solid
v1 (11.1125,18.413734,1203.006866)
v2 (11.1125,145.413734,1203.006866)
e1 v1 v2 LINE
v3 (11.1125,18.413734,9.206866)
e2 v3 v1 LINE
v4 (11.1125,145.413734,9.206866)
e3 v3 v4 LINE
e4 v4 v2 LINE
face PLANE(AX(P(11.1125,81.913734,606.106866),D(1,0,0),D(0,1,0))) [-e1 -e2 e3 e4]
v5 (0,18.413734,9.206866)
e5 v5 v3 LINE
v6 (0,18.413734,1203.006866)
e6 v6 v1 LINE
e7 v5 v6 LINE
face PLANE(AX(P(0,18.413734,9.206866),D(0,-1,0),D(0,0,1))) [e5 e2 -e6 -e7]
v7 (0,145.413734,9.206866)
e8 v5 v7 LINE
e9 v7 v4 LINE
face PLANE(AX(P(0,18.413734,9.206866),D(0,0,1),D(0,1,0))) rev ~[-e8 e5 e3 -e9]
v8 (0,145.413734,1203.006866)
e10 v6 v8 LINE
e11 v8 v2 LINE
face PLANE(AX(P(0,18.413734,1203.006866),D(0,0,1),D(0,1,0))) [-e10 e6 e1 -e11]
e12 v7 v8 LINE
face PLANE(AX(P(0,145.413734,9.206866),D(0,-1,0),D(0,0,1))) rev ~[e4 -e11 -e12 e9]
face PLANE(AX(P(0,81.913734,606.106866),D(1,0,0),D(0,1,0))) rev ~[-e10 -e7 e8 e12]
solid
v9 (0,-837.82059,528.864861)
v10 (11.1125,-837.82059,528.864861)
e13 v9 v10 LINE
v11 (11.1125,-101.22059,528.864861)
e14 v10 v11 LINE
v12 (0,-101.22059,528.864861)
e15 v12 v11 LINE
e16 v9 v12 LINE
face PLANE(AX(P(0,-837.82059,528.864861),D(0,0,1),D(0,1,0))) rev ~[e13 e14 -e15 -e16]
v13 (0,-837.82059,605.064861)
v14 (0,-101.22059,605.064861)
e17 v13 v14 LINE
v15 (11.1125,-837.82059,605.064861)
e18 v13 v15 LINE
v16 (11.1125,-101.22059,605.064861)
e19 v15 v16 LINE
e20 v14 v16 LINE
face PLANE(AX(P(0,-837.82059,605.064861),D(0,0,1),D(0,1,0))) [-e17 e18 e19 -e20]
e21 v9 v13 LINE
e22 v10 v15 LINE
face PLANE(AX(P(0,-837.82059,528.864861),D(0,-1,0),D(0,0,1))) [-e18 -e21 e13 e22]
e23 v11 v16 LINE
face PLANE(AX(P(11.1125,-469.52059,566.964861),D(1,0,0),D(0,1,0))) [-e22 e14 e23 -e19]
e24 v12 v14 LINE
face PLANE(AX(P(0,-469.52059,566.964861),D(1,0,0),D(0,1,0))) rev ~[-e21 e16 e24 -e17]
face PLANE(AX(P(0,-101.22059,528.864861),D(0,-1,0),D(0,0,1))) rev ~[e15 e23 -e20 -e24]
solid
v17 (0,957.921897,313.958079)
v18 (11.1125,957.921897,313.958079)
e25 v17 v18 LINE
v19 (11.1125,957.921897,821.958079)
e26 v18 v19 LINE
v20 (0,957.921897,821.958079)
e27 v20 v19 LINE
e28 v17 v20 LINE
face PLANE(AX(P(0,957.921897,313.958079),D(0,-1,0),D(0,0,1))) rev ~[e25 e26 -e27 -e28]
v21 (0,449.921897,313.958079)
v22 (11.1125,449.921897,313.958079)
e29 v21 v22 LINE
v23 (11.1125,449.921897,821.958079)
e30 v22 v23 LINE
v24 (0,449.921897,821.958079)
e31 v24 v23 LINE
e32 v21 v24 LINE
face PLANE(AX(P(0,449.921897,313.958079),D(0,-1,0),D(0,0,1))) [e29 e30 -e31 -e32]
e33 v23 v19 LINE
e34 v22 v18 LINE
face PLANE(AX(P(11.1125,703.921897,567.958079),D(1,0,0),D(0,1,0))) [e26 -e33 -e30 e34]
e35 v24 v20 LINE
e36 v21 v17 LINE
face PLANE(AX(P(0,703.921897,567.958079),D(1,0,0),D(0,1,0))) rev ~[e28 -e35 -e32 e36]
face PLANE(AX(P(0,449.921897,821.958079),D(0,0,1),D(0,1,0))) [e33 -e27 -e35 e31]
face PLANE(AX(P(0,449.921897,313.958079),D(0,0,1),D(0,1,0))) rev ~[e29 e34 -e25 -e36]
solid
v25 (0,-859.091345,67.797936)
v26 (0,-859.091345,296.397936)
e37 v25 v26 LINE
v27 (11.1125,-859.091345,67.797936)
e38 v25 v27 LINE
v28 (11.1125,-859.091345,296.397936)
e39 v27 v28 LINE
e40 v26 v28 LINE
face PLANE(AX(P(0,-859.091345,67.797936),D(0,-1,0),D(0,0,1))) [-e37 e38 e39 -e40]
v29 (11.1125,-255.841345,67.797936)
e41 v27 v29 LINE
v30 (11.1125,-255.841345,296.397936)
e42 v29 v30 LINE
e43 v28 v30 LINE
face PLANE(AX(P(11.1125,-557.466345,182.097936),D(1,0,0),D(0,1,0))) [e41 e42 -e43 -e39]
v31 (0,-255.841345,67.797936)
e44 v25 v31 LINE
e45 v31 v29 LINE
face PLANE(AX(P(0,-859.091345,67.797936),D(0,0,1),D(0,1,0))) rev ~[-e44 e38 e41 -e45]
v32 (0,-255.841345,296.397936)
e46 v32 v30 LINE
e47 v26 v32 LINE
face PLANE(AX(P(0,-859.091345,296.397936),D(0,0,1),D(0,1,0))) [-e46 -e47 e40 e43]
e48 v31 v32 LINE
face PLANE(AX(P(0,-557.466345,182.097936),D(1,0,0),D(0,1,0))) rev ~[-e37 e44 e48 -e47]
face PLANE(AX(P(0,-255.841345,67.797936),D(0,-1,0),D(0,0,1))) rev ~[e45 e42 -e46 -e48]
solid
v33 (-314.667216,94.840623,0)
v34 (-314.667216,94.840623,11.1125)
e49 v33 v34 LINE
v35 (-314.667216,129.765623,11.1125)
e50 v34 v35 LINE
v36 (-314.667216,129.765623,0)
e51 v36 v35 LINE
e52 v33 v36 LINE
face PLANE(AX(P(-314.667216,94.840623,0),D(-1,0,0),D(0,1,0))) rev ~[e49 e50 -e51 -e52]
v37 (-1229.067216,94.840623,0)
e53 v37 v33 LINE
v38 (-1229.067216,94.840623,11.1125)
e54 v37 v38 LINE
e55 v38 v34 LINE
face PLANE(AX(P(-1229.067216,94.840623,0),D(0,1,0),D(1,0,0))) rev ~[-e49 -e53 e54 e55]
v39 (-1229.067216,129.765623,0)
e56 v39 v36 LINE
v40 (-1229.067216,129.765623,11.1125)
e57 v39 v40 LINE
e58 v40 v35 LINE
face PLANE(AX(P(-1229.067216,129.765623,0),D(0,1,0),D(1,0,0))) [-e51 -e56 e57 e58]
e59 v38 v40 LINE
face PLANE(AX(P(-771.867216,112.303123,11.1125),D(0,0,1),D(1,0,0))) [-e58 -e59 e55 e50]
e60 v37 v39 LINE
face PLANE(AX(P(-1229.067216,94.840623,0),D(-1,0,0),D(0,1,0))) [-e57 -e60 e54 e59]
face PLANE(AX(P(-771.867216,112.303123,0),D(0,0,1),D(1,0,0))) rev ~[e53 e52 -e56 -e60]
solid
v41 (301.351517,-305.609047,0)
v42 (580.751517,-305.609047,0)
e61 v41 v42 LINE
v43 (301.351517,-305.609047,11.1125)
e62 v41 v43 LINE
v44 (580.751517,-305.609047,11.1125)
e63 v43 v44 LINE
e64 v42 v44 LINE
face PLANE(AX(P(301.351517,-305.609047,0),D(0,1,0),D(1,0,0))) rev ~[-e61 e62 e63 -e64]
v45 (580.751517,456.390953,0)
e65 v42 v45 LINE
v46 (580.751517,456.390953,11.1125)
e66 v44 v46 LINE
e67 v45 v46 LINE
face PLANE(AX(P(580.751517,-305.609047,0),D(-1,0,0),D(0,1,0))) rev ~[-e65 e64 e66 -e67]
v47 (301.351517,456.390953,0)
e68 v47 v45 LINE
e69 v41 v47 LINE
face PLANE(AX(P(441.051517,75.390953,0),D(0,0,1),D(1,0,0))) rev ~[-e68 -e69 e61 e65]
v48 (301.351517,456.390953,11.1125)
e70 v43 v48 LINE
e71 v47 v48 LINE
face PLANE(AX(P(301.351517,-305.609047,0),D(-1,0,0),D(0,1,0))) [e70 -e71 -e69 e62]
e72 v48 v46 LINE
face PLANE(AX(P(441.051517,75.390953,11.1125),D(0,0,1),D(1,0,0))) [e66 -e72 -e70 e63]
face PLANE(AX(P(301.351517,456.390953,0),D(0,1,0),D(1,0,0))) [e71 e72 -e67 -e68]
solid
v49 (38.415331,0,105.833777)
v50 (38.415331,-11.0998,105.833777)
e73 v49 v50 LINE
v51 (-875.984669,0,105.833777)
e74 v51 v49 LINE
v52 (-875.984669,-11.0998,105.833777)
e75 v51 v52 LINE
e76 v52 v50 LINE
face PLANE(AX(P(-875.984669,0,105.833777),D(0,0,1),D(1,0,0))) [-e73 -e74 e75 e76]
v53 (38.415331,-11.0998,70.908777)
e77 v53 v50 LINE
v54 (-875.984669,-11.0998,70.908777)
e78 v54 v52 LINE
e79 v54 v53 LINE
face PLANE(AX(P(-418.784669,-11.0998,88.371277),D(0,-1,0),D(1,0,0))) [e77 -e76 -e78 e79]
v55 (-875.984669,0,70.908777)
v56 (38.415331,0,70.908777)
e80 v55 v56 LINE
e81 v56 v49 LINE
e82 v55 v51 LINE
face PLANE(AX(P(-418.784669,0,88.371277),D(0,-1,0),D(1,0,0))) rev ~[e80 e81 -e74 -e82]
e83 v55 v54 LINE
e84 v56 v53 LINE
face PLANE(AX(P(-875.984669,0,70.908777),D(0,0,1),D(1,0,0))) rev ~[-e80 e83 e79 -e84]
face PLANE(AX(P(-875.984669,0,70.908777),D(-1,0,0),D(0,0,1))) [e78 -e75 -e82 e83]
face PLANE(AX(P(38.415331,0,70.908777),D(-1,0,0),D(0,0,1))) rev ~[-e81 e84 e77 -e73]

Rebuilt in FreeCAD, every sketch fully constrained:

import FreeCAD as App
import Part
import Sketcher

V = App.Vector
Q = App.Units.Quantity


def add_polygon(sketch, points):
    """Adds a closed chain of lines whose ends are joined by coincident constraints."""
    first, n = sketch.GeometryCount, len(points)
    for a, b in zip(points, points[1:] + points[:1]):
        sketch.addGeometry(Part.LineSegment(App.Vector(*a, 0), App.Vector(*b, 0)), False)
    for i in range(n):
        sketch.addConstraint(Sketcher.Constraint("Coincident", first + i, 2, first + (i + 1) % n, 1))

doc = App.newDocument("Part")
body = doc.addObject("PartDesign::Body", "Body")

# Sketch on YZ plane
sketch1 = body.newObject("Sketcher::SketchObject", "Sketch")
sketch1.AttachmentSupport = (doc.getObject("YZ_Plane"), [""])
sketch1.MapMode = "FlatFace"
add_polygon(sketch1, [(18, 1203), (18, 9), (145, 9), (145, 1203)])  # lines 0-3
sketch1.addConstraint(Sketcher.Constraint("Vertical", 0))
sketch1.addConstraint(Sketcher.Constraint("Horizontal", 1))
sketch1.addConstraint(Sketcher.Constraint("Vertical", 2))
sketch1.addConstraint(Sketcher.Constraint("Horizontal", 3))
sketch1.addConstraint(Sketcher.Constraint("DistanceX", 1, 1, 1, 2, Q("5 in")))
sketch1.addConstraint(Sketcher.Constraint("DistanceY", 0, 2, 0, 1, Q("47 in")))
sketch1.addConstraint(Sketcher.Constraint("DistanceX", -1, 1, 0, 2, 18.413734))
sketch1.addConstraint(Sketcher.Constraint("DistanceY", -1, 1, 0, 2, 9.206866))
pad1 = body.newObject("PartDesign::Pad", "Pad")
pad1.Profile = sketch1
pad1.Length = Q("0.4375 in")
body2 = doc.addObject("PartDesign::Body", "Body001")

# Sketch on YZ plane
sketch2 = body2.newObject("Sketcher::SketchObject", "Sketch001")
sketch2.AttachmentSupport = (doc.getObject("YZ_Plane001"), [""])
sketch2.MapMode = "FlatFace"
add_polygon(sketch2, [(-859, 296), (-859, 68), (-256, 68), (-256, 296)])  # lines 0-3
sketch2.addConstraint(Sketcher.Constraint("Vertical", 0))
sketch2.addConstraint(Sketcher.Constraint("Horizontal", 1))
sketch2.addConstraint(Sketcher.Constraint("Vertical", 2))
sketch2.addConstraint(Sketcher.Constraint("Horizontal", 3))
sketch2.addConstraint(Sketcher.Constraint("DistanceY", 0, 2, 0, 1, Q("9 in")))
sketch2.addConstraint(Sketcher.Constraint("DistanceX", 1, 1, 1, 2, Q("23.75 in")))
sketch2.addConstraint(Sketcher.Constraint("DistanceX", 0, 2, -1, 1, 859.091345))
sketch2.addConstraint(Sketcher.Constraint("DistanceY", -1, 1, 0, 2, 67.797936))
pad2 = body2.newObject("PartDesign::Pad", "Pad001")
pad2.Profile = sketch2
pad2.Length = Q("0.4375 in")
body3 = doc.addObject("PartDesign::Body", "Body002")

# Sketch on YZ plane
sketch3 = body3.newObject("Sketcher::SketchObject", "Sketch002")
sketch3.AttachmentSupport = (doc.getObject("YZ_Plane002"), [""])
sketch3.MapMode = "FlatFace"
add_polygon(sketch3, [(-838, 605), (-838, 529), (-101, 529), (-101, 605)])  # lines 0-3
sketch3.addConstraint(Sketcher.Constraint("Vertical", 0))
sketch3.addConstraint(Sketcher.Constraint("Horizontal", 1))
sketch3.addConstraint(Sketcher.Constraint("Vertical", 2))
sketch3.addConstraint(Sketcher.Constraint("Horizontal", 3))
sketch3.addConstraint(Sketcher.Constraint("DistanceX", 1, 1, 1, 2, Q("29 in")))
sketch3.addConstraint(Sketcher.Constraint("DistanceY", 0, 2, 0, 1, Q("3 in")))
sketch3.addConstraint(Sketcher.Constraint("DistanceX", 0, 2, -1, 1, 837.82059))
sketch3.addConstraint(Sketcher.Constraint("DistanceY", -1, 1, 0, 2, 528.864861))
pad3 = body3.newObject("PartDesign::Pad", "Pad002")
pad3.Profile = sketch3
pad3.Length = Q("0.4375 in")
body4 = doc.addObject("PartDesign::Body", "Body003")

# Sketch on XY plane
sketch4 = body4.newObject("Sketcher::SketchObject", "Sketch003")
sketch4.AttachmentSupport = (doc.getObject("XY_Plane003"), [""])
sketch4.MapMode = "FlatFace"
add_polygon(sketch4, [(301, 456), (301, -306), (581, -306), (581, 456)])  # lines 0-3
sketch4.addConstraint(Sketcher.Constraint("Vertical", 0))
sketch4.addConstraint(Sketcher.Constraint("Horizontal", 1))
sketch4.addConstraint(Sketcher.Constraint("Vertical", 2))
sketch4.addConstraint(Sketcher.Constraint("Horizontal", 3))
sketch4.addConstraint(Sketcher.Constraint("DistanceX", 1, 1, 1, 2, Q("11 in")))
sketch4.addConstraint(Sketcher.Constraint("DistanceY", 0, 2, 0, 1, Q("30 in")))
sketch4.addConstraint(Sketcher.Constraint("DistanceX", -1, 1, 0, 2, 301.351517))
sketch4.addConstraint(Sketcher.Constraint("DistanceY", 0, 2, -1, 1, 305.609047))
pad4 = body4.newObject("PartDesign::Pad", "Pad003")
pad4.Profile = sketch4
pad4.Length = Q("0.4375 in")
body5 = doc.addObject("PartDesign::Body", "Body004")

# Sketch on YZ plane
sketch5 = body5.newObject("Sketcher::SketchObject", "Sketch004")
sketch5.AttachmentSupport = (doc.getObject("YZ_Plane004"), [""])
sketch5.MapMode = "FlatFace"
add_polygon(sketch5, [(450, 822), (450, 314), (958, 314), (958, 822)])  # lines 0-3
sketch5.addConstraint(Sketcher.Constraint("Vertical", 0))
sketch5.addConstraint(Sketcher.Constraint("Horizontal", 1))
sketch5.addConstraint(Sketcher.Constraint("Vertical", 2))
sketch5.addConstraint(Sketcher.Constraint("Horizontal", 3))
sketch5.addConstraint(Sketcher.Constraint("Equal", 3, 0))
sketch5.addConstraint(Sketcher.Constraint("DistanceX", 1, 1, 1, 2, Q("20 in")))
sketch5.addConstraint(Sketcher.Constraint("DistanceY", -1, 1, 0, 2, 313.958079))
sketch5.addConstraint(Sketcher.Constraint("DistanceX", -1, 1, 0, 2, 449.921897))
pad5 = body5.newObject("PartDesign::Pad", "Pad004")
pad5.Profile = sketch5
pad5.Length = Q("0.4375 in")
body6 = doc.addObject("PartDesign::Body", "Body005")

# Sketch on XZ plane
sketch6 = body6.newObject("Sketcher::SketchObject", "Sketch005")
sketch6.AttachmentSupport = (doc.getObject("XZ_Plane005"), [""])
sketch6.MapMode = "FlatFace"
add_polygon(sketch6, [(-876, 106), (-876, 71), (38, 71), (38, 106)])  # lines 0-3
sketch6.addConstraint(Sketcher.Constraint("Vertical", 0))
sketch6.addConstraint(Sketcher.Constraint("Horizontal", 1))
sketch6.addConstraint(Sketcher.Constraint("Vertical", 2))
sketch6.addConstraint(Sketcher.Constraint("Horizontal", 3))
sketch6.addConstraint(Sketcher.Constraint("DistanceX", 1, 1, 1, 2, Q("36 in")))
sketch6.addConstraint(Sketcher.Constraint("DistanceY", 0, 2, 0, 1, Q("1.375 in")))
sketch6.addConstraint(Sketcher.Constraint("DistanceX", 0, 2, -1, 1, 875.984669))
sketch6.addConstraint(Sketcher.Constraint("DistanceY", -1, 1, 0, 2, 70.908777))
pad6 = body6.newObject("PartDesign::Pad", "Pad005")
pad6.Profile = sketch6
pad6.Length = Q("0.437 in")
body7 = doc.addObject("PartDesign::Body", "Body006")

# Sketch on XY plane
sketch7 = body7.newObject("Sketcher::SketchObject", "Sketch006")
sketch7.AttachmentSupport = (doc.getObject("XY_Plane006"), [""])
sketch7.MapMode = "FlatFace"
add_polygon(sketch7, [(-1229, 130), (-1229, 95), (-315, 95), (-315, 130)])  # lines 0-3
sketch7.addConstraint(Sketcher.Constraint("Vertical", 0))
sketch7.addConstraint(Sketcher.Constraint("Horizontal", 1))
sketch7.addConstraint(Sketcher.Constraint("Vertical", 2))
sketch7.addConstraint(Sketcher.Constraint("Horizontal", 3))
sketch7.addConstraint(Sketcher.Constraint("DistanceX", 1, 1, 1, 2, Q("36 in")))
sketch7.addConstraint(Sketcher.Constraint("DistanceY", 0, 2, 0, 1, Q("1.375 in")))
sketch7.addConstraint(Sketcher.Constraint("DistanceX", 0, 2, -1, 1, 1229.067216))
sketch7.addConstraint(Sketcher.Constraint("DistanceY", -1, 1, 0, 2, 94.840623))
pad7 = body7.newObject("PartDesign::Pad", "Pad006")
pad7.Profile = sketch7
pad7.Length = Q("0.4375 in")

doc.recompute()
